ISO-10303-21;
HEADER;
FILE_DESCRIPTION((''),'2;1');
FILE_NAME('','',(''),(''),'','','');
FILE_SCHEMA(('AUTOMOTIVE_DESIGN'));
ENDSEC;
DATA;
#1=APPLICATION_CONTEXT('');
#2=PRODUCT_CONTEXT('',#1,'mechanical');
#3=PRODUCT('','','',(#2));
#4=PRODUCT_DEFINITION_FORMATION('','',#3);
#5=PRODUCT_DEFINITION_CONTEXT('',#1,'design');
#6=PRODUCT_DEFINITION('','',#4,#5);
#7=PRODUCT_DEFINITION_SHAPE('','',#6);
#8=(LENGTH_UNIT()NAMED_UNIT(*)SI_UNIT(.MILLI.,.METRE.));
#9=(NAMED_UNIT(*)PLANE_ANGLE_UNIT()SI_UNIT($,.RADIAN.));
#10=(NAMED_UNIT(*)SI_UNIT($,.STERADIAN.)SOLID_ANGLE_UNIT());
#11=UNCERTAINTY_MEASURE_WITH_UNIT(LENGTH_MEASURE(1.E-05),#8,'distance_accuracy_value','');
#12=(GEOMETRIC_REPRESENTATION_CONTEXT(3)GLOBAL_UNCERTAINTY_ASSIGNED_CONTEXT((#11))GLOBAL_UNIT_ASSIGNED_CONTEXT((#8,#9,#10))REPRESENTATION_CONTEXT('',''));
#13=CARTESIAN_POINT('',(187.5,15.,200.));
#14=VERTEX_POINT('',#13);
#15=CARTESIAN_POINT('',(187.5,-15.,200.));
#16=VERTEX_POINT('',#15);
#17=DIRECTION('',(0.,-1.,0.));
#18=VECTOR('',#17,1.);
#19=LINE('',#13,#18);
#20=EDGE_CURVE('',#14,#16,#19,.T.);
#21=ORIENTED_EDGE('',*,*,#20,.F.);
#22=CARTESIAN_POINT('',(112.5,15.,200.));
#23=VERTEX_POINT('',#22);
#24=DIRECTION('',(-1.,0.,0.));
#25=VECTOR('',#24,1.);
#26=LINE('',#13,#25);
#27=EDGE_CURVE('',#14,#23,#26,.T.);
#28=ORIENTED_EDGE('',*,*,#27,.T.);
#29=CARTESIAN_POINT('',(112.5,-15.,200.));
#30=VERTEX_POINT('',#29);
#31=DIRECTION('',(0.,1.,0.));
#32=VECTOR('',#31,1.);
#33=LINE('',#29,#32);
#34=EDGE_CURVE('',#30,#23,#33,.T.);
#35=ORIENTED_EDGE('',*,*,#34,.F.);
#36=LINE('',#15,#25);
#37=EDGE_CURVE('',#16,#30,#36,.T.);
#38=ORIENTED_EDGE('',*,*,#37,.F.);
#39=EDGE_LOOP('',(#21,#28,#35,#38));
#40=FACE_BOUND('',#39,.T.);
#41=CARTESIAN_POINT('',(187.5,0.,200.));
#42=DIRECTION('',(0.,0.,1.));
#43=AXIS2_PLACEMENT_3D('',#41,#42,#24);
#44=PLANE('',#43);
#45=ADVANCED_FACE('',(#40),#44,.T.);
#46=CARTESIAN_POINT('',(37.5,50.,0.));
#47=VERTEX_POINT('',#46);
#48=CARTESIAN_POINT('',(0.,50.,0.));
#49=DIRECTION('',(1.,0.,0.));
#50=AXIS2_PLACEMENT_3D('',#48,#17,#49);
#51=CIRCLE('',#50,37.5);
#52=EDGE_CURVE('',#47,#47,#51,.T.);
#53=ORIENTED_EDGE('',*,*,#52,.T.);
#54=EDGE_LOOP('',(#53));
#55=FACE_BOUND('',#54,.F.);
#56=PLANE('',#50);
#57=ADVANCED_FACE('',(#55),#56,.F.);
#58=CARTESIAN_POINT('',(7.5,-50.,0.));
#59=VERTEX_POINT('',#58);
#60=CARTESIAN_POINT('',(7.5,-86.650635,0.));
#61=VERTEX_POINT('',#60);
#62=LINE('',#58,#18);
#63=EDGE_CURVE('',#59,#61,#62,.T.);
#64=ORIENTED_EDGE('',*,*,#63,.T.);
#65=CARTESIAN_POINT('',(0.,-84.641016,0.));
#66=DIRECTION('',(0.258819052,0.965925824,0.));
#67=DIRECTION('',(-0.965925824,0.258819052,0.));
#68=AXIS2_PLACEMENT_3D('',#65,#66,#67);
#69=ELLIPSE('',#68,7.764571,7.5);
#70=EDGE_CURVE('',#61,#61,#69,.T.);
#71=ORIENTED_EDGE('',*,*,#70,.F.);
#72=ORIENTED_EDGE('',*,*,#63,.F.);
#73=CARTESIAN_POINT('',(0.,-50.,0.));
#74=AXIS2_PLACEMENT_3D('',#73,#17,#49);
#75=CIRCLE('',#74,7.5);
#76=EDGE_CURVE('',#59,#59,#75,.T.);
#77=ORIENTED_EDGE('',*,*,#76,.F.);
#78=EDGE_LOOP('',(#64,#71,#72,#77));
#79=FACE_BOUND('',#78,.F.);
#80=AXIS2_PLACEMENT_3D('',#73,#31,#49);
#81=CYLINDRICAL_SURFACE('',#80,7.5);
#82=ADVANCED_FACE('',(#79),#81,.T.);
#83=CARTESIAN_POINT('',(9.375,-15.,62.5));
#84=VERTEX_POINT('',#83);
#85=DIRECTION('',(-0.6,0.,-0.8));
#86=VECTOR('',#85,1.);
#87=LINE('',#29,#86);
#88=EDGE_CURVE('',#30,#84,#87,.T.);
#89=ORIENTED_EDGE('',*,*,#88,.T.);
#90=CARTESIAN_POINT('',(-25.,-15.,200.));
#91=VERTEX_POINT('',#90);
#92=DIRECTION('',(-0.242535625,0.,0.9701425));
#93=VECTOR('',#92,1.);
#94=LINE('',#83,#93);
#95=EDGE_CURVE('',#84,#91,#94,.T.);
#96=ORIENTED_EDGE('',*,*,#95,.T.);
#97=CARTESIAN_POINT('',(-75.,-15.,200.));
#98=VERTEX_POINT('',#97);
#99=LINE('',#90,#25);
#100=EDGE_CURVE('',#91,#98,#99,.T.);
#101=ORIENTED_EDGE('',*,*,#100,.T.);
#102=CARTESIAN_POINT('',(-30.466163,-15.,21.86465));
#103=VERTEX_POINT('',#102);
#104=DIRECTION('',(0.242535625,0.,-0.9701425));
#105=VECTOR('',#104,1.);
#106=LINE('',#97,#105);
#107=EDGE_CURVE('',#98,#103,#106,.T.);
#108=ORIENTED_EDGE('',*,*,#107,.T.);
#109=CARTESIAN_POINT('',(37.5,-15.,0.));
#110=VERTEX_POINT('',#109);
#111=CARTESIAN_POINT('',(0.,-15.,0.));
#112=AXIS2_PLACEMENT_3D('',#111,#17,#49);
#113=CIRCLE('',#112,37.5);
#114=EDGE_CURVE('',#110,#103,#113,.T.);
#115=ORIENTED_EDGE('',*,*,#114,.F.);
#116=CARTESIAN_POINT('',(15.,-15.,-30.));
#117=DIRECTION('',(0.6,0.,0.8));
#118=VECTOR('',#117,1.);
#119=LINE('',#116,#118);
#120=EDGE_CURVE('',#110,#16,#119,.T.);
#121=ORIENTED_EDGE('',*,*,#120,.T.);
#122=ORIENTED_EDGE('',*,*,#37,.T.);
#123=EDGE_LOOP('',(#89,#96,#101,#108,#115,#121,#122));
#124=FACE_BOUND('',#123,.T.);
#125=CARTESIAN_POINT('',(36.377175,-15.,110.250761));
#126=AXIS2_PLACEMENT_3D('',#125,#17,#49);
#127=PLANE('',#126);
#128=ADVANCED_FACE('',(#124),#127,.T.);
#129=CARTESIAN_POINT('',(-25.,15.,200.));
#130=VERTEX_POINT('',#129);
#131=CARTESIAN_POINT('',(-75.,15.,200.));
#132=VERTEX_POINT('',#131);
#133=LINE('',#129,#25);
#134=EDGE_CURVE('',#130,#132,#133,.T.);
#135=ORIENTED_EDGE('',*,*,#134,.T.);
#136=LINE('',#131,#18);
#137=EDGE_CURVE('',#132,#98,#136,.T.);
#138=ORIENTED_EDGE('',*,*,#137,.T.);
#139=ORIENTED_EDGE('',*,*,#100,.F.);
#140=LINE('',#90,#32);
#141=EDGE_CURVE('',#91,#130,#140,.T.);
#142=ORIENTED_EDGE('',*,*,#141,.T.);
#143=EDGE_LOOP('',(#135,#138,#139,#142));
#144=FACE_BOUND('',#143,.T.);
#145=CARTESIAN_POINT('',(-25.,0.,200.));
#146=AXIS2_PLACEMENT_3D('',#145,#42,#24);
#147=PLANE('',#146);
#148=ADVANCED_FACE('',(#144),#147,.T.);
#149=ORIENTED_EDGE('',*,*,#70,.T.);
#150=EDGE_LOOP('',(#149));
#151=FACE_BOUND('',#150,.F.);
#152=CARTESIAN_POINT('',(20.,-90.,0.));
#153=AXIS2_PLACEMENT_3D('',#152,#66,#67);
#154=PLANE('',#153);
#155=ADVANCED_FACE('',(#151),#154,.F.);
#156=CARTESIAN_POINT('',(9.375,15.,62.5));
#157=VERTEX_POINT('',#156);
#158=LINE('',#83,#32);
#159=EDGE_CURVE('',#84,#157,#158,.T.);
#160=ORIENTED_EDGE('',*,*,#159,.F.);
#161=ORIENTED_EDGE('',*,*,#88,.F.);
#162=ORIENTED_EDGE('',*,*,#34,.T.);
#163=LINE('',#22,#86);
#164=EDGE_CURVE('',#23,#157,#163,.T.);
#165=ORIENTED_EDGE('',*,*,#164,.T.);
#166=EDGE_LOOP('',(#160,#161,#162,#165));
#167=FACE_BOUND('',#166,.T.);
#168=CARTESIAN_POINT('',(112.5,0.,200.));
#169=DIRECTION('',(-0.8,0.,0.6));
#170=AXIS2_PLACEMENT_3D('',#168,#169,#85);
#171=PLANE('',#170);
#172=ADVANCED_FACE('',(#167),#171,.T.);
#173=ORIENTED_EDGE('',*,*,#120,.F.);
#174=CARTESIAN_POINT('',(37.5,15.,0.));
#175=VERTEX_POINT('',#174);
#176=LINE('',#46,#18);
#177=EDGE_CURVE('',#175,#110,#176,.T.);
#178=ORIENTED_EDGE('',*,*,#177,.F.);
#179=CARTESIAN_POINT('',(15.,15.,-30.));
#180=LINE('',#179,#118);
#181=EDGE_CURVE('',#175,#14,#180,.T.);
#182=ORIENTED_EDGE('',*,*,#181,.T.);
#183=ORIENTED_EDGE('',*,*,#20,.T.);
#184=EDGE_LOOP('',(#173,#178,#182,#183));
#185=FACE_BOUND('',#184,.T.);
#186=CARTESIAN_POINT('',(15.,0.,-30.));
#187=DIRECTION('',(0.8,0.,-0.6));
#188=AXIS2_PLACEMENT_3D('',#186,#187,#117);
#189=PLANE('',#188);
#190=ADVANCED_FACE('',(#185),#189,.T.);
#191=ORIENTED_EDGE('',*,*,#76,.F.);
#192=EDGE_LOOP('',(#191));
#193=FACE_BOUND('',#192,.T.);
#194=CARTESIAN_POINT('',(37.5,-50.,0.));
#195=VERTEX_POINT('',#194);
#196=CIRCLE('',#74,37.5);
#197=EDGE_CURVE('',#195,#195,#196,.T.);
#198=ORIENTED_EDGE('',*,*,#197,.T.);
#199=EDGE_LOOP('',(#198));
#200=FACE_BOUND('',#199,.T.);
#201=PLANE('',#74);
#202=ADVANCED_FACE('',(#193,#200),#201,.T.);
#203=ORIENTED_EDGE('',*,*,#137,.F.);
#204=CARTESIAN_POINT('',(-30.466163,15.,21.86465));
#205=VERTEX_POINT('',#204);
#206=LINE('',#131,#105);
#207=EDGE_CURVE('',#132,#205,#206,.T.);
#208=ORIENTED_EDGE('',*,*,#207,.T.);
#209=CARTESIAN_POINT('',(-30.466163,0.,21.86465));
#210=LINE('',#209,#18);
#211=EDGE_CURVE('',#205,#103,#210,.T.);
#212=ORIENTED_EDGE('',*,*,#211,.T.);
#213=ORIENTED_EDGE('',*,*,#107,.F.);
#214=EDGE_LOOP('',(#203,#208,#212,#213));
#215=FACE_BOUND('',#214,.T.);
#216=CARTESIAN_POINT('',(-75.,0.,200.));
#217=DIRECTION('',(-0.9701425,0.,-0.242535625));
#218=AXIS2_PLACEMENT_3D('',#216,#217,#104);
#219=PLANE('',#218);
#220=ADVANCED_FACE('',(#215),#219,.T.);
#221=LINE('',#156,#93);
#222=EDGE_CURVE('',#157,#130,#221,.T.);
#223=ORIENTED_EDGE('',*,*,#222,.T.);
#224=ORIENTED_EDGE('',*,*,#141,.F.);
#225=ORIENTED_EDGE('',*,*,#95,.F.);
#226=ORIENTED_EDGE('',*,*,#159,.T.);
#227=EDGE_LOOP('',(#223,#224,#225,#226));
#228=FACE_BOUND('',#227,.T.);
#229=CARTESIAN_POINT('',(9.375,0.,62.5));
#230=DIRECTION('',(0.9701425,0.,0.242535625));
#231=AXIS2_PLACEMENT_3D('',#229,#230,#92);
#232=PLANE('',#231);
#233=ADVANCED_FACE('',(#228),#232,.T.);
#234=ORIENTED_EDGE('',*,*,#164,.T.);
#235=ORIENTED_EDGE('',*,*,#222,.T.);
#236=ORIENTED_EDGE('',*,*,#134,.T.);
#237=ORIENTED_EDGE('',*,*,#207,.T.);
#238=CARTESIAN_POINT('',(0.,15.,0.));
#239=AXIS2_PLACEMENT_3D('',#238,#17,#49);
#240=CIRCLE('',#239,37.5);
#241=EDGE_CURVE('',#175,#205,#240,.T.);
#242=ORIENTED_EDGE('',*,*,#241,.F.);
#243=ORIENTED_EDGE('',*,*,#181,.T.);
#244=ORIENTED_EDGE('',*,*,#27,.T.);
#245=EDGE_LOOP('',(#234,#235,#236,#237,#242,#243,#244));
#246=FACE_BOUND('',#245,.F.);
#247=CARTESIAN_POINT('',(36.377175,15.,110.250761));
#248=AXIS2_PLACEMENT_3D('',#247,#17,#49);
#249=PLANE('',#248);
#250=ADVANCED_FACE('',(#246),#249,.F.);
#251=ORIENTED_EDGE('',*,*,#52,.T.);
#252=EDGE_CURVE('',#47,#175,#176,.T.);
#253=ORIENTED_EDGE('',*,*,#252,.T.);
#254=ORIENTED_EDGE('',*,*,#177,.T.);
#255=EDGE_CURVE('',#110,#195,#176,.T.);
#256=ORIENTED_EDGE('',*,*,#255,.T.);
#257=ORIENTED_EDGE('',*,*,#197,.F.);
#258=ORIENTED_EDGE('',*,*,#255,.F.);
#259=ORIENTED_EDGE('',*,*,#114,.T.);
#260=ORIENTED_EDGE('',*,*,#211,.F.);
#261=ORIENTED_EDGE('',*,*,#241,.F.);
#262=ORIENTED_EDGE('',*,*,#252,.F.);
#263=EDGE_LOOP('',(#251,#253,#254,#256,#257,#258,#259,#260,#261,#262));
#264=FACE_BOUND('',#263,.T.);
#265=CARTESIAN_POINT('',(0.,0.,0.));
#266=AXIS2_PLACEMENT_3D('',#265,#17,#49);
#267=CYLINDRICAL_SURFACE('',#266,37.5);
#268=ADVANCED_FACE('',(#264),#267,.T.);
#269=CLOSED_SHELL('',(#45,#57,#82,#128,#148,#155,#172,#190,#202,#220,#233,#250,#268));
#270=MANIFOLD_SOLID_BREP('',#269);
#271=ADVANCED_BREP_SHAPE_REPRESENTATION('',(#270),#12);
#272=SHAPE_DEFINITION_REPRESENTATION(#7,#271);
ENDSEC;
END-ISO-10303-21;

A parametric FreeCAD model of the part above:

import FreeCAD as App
import Part
import Sketcher
from FreeCAD import Vector
Q = App.Units.Quantity

doc = App.newDocument("Part")
body = doc.addObject("PartDesign::Body", "Body")

# Sketch on XZ plane
sketch1 = body.newObject("Sketcher::SketchObject", "Sketch")
sketch1.AttachmentSupport = (doc.getObject("XZ_Plane"), [""])
sketch1.MapMode = "FlatFace"
sketch1.addGeometry([
    Part.LineSegment(Vector(-25, 200, 0), Vector(-75, 200, 0)),  # 0
    Part.LineSegment(Vector(-75, 200, 0), Vector(-18, -30, 0)),  # 1
    Part.LineSegment(Vector(-18, -30, 0), Vector(15, -30, 0)),  # 2
    Part.LineSegment(Vector(15, -30, 0), Vector(188, 200, 0)),  # 3
    Part.LineSegment(Vector(188, 200, 0), Vector(112, 200, 0)),  # 4
    Part.LineSegment(Vector(112, 200, 0), Vector(9, 62, 0)),  # 5
    Part.LineSegment(Vector(9, 62, 0), Vector(-25, 200, 0)),  # 6
], False)
sketch1.addConstraint([
    Sketcher.Constraint("Coincident", 0, 2, 1, 1),
    Sketcher.Constraint("Coincident", 1, 2, 2, 1),
    Sketcher.Constraint("Coincident", 2, 2, 3, 1),
    Sketcher.Constraint("Coincident", 3, 2, 4, 1),
    Sketcher.Constraint("Coincident", 4, 2, 5, 1),
    Sketcher.Constraint("Coincident", 5, 2, 6, 1),
    Sketcher.Constraint("Coincident", 6, 2, 0, 1),
    Sketcher.Constraint("Horizontal", 0),
    Sketcher.Constraint("Horizontal", 2),
    Sketcher.Constraint("Horizontal", 4),
    Sketcher.Constraint("Parallel", 3, 5),
    Sketcher.Constraint("Parallel", 1, 6),
    Sketcher.Constraint("Horizontal", 0, 2, 3, 2),
    Sketcher.Constraint("DistanceX", 0, 2, 0, 1, Q("50 mm")),
    Sketcher.Constraint("DistanceX", 4, 2, 4, 1, Q("75 mm")),
    Sketcher.Constraint("DistanceX", 2, 1, 2, 2, Q("32.5 mm")),
    Sketcher.Constraint("DistanceX", 0, 2, -1, 1, Q("75 mm")),
    Sketcher.Constraint("DistanceY", -1, 1, 0, 2, Q("200 mm")),
    Sketcher.Constraint("DistanceY", 1, 2, -1, 1, Q("30 mm")),
    Sketcher.Constraint("DistanceX", -1, 1, 2, 2, Q("15 mm")),
    Sketcher.Constraint("DistanceX", 1, 2, 3, 2, Q("205 mm")),
])
pad1 = body.newObject("PartDesign::Pad", "Pad")
pad1.Profile = sketch1
pad1.Length = 30
pad1.Midplane = True

# Sketch on XZ plane
sketch2 = body.newObject("Sketcher::SketchObject", "Sketch001")
sketch2.AttachmentSupport = (doc.getObject("XZ_Plane"), [""])
sketch2.MapMode = "FlatFace"
sketch2.addGeometry(Part.Circle(Vector(0, 0, 0), Vector(0, 0, 1), 38), False)
sketch2.addConstraint([
    Sketcher.Constraint("Coincident", 0, 3, -1, 1),
    Sketcher.Constraint("Diameter", 0, Q("75 mm")),
])
pad2 = body.newObject("PartDesign::Pad", "Pad001")
pad2.Profile = sketch2
pad2.Length = 100
pad2.Midplane = True

# Sketch on XZ plane
sketch3 = body.newObject("Sketcher::SketchObject", "Sketch002")
sketch3.AttachmentSupport = (doc.getObject("XZ_Plane"), [""])
sketch3.MapMode = "FlatFace"
sketch3.AttachmentOffset = App.Placement(Vector(0, 0, 50), App.Rotation())
sketch3.addGeometry(Part.Circle(Vector(0, 0, 0), Vector(0, 0, 1), 8), False)
sketch3.addConstraint([
    Sketcher.Constraint("Coincident", 0, 3, -1, 1),
    Sketcher.Constraint("Diameter", 0, Q("15 mm")),
])
pad3 = body.newObject("PartDesign::Pad", "Pad002")
pad3.Profile = sketch3
pad3.Length = 40

# Sketch on XY plane
sketch4 = body.newObject("Sketcher::SketchObject", "Sketch003")
sketch4.AttachmentSupport = (doc.getObject("XY_Plane"), [""])
sketch4.MapMode = "FlatFace"
sketch4.addGeometry([
    Part.LineSegment(Vector(-20, -79, 0), Vector(-20, -90, 0)),
    Part.LineSegment(Vector(-20, -90, 0), Vector(20, -90, 0)),
    Part.LineSegment(Vector(20, -90, 0), Vector(-20, -79, 0)),
], False)
sketch4.addConstraint([
    Sketcher.Constraint("Coincident", 0, 2, 1, 1),
    Sketcher.Constraint("Coincident", 1, 2, 2, 1),
    Sketcher.Constraint("Coincident", 2, 2, 0, 1),
    Sketcher.Constraint("Vertical", 0),
    Sketcher.Constraint("Horizontal", 1),
    Sketcher.Constraint("DistanceX", 1, 1, 1, 2, Q("40 mm")),
    Sketcher.Constraint("Angle", 2, Q("165 deg")),
    Sketcher.Constraint("DistanceX", 0, 2, -1, 1, Q("20 mm")),
    Sketcher.Constraint("DistanceY", 0, 2, -1, 1, Q("90 mm")),
])
pocket1 = body.newObject("PartDesign::Pocket", "Pocket")
pocket1.Profile = sketch4
pocket1.Length = 100
pocket1.Midplane = True

doc.recompute()
